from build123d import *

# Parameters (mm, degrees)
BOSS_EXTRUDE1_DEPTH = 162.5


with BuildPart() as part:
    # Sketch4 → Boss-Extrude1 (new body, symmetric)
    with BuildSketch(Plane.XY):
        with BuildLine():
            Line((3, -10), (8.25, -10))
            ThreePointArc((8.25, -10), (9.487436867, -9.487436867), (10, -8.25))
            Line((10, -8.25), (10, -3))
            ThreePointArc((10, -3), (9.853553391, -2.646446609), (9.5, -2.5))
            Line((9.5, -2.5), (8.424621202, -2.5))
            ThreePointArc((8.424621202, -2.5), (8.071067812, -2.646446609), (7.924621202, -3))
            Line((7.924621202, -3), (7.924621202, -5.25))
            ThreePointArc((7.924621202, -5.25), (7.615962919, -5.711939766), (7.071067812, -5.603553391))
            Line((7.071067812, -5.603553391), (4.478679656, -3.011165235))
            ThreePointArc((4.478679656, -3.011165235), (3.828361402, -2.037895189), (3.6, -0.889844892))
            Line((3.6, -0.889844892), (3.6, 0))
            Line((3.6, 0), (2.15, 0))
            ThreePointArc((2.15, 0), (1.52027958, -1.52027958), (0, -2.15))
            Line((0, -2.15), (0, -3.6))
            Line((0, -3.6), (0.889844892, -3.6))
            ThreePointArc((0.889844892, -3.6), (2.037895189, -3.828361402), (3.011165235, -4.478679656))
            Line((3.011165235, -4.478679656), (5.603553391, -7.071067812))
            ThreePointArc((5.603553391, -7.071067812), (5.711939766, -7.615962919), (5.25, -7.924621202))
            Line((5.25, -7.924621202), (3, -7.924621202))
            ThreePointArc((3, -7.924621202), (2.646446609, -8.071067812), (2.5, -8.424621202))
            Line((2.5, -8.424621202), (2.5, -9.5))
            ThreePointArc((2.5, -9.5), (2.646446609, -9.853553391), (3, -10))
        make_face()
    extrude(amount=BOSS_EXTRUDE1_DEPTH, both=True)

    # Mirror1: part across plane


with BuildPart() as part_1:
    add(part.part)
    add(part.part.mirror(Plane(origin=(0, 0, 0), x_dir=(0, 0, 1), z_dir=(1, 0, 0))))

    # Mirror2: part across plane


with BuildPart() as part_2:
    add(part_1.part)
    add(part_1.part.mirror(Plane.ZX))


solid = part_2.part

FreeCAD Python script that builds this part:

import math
import FreeCAD as App
import Part
import Sketcher

doc = App.newDocument("Part")
body = doc.addObject("PartDesign::Body", "Body")

# Sketch on XY plane
sketch1 = body.newObject("Sketcher::SketchObject", "Sketch")
sketch1.AttachmentSupport = (doc.getObject("XY_Plane"), [""])
sketch1.MapMode = "FlatFace"
sketch1.addGeometry([
    Part.LineSegment(App.Vector(3, -10, 0), App.Vector(8.25, -10, 0)),  # 0
    Part.ArcOfCircle(Part.Circle(App.Vector(8.25, -8.25, 0), App.Vector(0, 0, 1), 1.75), math.radians(-90), math.radians(0)),  # 1
    Part.LineSegment(App.Vector(10, -8.25, 0), App.Vector(10, -3, 0)),  # 2
    Part.ArcOfCircle(Part.Circle(App.Vector(9.5, -3, 0), App.Vector(0, 0, 1), 0.5), math.radians(0), math.radians(90)),  # 3
    Part.LineSegment(App.Vector(9.5, -2.5, 0), App.Vector(8.424621, -2.5, 0)),  # 4
    Part.ArcOfCircle(Part.Circle(App.Vector(8.424621, -3, 0), App.Vector(0, 0, 1), 0.5), math.radians(90), math.radians(180)),  # 5
    Part.LineSegment(App.Vector(7.924621, -3, 0), App.Vector(7.924621, -5.25, 0)),  # 6
    Part.ArcOfCircle(Part.Circle(App.Vector(7.424621, -5.25, 0), App.Vector(0, 0, 1), 0.5), math.radians(-135), math.radians(0)),  # 7
    Part.LineSegment(App.Vector(7.071068, -5.603553, 0), App.Vector(4.47868, -3.011165, 0)),  # 8
    Part.ArcOfCircle(Part.Circle(App.Vector(6.6, -0.889845, 0), App.Vector(0, 0, 1), 3), math.radians(180), math.radians(225)),  # 9
    Part.LineSegment(App.Vector(3.6, -0.889845, 0), App.Vector(3.6, 0, 0)),  # 10
    Part.LineSegment(App.Vector(3.6, 0, 0), App.Vector(2.15, 0, 0)),  # 11
    Part.ArcOfCircle(Part.Circle(App.Vector(0, 0, 0), App.Vector(0, 0, 1), 2.15), math.radians(-90), math.radians(0)),  # 12
    Part.LineSegment(App.Vector(0, -2.15, 0), App.Vector(0, -3.6, 0)),  # 13
    Part.LineSegment(App.Vector(0, -3.6, 0), App.Vector(0.889845, -3.6, 0)),  # 14
    Part.ArcOfCircle(Part.Circle(App.Vector(0.889845, -6.6, 0), App.Vector(0, 0, 1), 3), math.radians(45), math.radians(90)),  # 15
    Part.LineSegment(App.Vector(3.011165, -4.47868, 0), App.Vector(5.603553, -7.071068, 0)),  # 16
    Part.ArcOfCircle(Part.Circle(App.Vector(5.25, -7.424621, 0), App.Vector(0, 0, 1), 0.5), math.radians(-90), math.radians(45)),  # 17
    Part.LineSegment(App.Vector(5.25, -7.924621, 0), App.Vector(3, -7.924621, 0)),  # 18
    Part.ArcOfCircle(Part.Circle(App.Vector(3, -8.424621, 0), App.Vector(0, 0, 1), 0.5), math.radians(90), math.radians(180)),  # 19
    Part.LineSegment(App.Vector(2.5, -8.424621, 0), App.Vector(2.5, -9.5, 0)),  # 20
    Part.ArcOfCircle(Part.Circle(App.Vector(3, -9.5, 0), App.Vector(0, 0, 1), 0.5), math.radians(180), math.radians(270)),  # 21
], False)
sketch1.addConstraint([
    Sketcher.Constraint("Tangent", 0, 2, 1, 1),
    Sketcher.Constraint("Tangent", 1, 2, 2, 1),
    Sketcher.Constraint("Tangent", 2, 2, 3, 1),
    Sketcher.Constraint("Tangent", 3, 2, 4, 1),
    Sketcher.Constraint("Tangent", 4, 2, 5, 1),
    Sketcher.Constraint("Tangent", 5, 2, 6, 1),
    Sketcher.Constraint("Tangent", 6, 2, 7, 2),
    Sketcher.Constraint("Tangent", 7, 1, 8, 1),
    Sketcher.Constraint("Tangent", 8, 2, 9, 2),
    Sketcher.Constraint("Tangent", 9, 1, 10, 1),
    Sketcher.Constraint("Coincident", 10, 2, 11, 1),
    Sketcher.Constraint("Coincident", 11, 2, 12, 2),
    Sketcher.Constraint("Coincident", 12, 1, 13, 1),
    Sketcher.Constraint("Coincident", 13, 2, 14, 1),
    Sketcher.Constraint("Tangent", 14, 2, 15, 2),
    Sketcher.Constraint("Tangent", 15, 1, 16, 1),
    Sketcher.Constraint("Tangent", 16, 2, 17, 2),
    Sketcher.Constraint("Tangent", 17, 1, 18, 1),
    Sketcher.Constraint("Tangent", 18, 2, 19, 1),
    Sketcher.Constraint("Tangent", 19, 2, 20, 1),
    Sketcher.Constraint("Tangent", 20, 2, 21, 1),
    Sketcher.Constraint("Tangent", 21, 2, 0, 1),
    Sketcher.Constraint("Horizontal", 0),
    Sketcher.Constraint("Vertical", 2),
    Sketcher.Constraint("Horizontal", 4),
    Sketcher.Constraint("Vertical", 6),
    Sketcher.Constraint("Vertical", 10),
    Sketcher.Constraint("Horizontal", 11),
    Sketcher.Constraint("Vertical", 13),
    Sketcher.Constraint("Horizontal", 14),
    Sketcher.Constraint("Horizontal", 18),
    Sketcher.Constraint("Vertical", 20),
    Sketcher.Constraint("Coincident", 12, 3, -1, 1),
    Sketcher.Constraint("Equal", 3, 5),
    Sketcher.Constraint("Equal", 5, 7),
    Sketcher.Constraint("Equal", 9, 15),
    Sketcher.Constraint("Equal", 7, 17),
    Sketcher.Constraint("Equal", 17, 19),
    Sketcher.Constraint("Equal", 19, 21),
    Sketcher.Constraint("PointOnObject", 10, 2, -1),
    Sketcher.Constraint("PointOnObject", 12, 1, -2),
    Sketcher.Constraint("Parallel", 8, 16),
    Sketcher.Constraint("Equal", 0, 2),
    Sketcher.Constraint("Equal", 18, 6),
    Sketcher.Constraint("Equal", 14, 10),
    Sketcher.Constraint("Equal", 11, 13),
    Sketcher.Constraint("Equal", 4, 20),
    Sketcher.Constraint("Equal", 8, 16),
    Sketcher.Constraint("Radius", 9, 3.0),
    Sketcher.Constraint("Radius", 3, 0.5),
    Sketcher.Constraint("Radius", 1, 1.75),
    Sketcher.Constraint("Radius", 12, 2.15),
    Sketcher.Constraint("DistanceY", 3, 3, -1, 1, 3.0),
    Sketcher.Constraint("DistanceY", 0, 2, -1, 1, 10.0),
    Sketcher.Constraint("DistanceY", 1, 3, 7, 3, 3.0),
    Sketcher.Constraint("DistanceX", 11, 2, 11, 1, 1.45),
    Sketcher.Constraint("DistanceX", 4, 2, 4, 1, 1.075379),
])
pad1 = body.newObject("PartDesign::Pad", "Pad")
pad1.Profile = sketch1
pad1.Length = 325
pad1.Midplane = True
body2 = doc.addObject("PartDesign::Body", "Body001")
doc.recompute()

body2.BaseFeature = body
doc.recompute()

mirroring = doc.addObject("Part::Mirroring", "Mirroring")
mirroring.Source = body
mirroring.Base = App.Vector(0, 0, 0)
mirroring.Normal = App.Vector(1, 0, 0)
body3 = doc.addObject("PartDesign::Body", "Body002")
body3.BaseFeature = mirroring
boolean = body2.newObject("PartDesign::Boolean", "Boolean")
boolean.Type = "Fuse"
boolean.addObjects([body3])
doc.recompute()
body4 = doc.addObject("PartDesign::Body", "Body003")
doc.recompute()

body4.BaseFeature = body2
doc.recompute()

mirroring2 = doc.addObject("Part::Mirroring", "Mirroring001")
mirroring2.Source = body2
mirroring2.Base = App.Vector(0, 0, 0)
mirroring2.Normal = App.Vector(0, 1, 0)
body5 = doc.addObject("PartDesign::Body", "Body004")
body5.BaseFeature = mirroring2
boolean2 = body4.newObject("PartDesign::Boolean", "Boolean001")
boolean2.Type = "Fuse"
boolean2.addObjects([body5])
doc.recompute()
mirroring.Visibility = False
mirroring2.Visibility = False

doc.recompute()
